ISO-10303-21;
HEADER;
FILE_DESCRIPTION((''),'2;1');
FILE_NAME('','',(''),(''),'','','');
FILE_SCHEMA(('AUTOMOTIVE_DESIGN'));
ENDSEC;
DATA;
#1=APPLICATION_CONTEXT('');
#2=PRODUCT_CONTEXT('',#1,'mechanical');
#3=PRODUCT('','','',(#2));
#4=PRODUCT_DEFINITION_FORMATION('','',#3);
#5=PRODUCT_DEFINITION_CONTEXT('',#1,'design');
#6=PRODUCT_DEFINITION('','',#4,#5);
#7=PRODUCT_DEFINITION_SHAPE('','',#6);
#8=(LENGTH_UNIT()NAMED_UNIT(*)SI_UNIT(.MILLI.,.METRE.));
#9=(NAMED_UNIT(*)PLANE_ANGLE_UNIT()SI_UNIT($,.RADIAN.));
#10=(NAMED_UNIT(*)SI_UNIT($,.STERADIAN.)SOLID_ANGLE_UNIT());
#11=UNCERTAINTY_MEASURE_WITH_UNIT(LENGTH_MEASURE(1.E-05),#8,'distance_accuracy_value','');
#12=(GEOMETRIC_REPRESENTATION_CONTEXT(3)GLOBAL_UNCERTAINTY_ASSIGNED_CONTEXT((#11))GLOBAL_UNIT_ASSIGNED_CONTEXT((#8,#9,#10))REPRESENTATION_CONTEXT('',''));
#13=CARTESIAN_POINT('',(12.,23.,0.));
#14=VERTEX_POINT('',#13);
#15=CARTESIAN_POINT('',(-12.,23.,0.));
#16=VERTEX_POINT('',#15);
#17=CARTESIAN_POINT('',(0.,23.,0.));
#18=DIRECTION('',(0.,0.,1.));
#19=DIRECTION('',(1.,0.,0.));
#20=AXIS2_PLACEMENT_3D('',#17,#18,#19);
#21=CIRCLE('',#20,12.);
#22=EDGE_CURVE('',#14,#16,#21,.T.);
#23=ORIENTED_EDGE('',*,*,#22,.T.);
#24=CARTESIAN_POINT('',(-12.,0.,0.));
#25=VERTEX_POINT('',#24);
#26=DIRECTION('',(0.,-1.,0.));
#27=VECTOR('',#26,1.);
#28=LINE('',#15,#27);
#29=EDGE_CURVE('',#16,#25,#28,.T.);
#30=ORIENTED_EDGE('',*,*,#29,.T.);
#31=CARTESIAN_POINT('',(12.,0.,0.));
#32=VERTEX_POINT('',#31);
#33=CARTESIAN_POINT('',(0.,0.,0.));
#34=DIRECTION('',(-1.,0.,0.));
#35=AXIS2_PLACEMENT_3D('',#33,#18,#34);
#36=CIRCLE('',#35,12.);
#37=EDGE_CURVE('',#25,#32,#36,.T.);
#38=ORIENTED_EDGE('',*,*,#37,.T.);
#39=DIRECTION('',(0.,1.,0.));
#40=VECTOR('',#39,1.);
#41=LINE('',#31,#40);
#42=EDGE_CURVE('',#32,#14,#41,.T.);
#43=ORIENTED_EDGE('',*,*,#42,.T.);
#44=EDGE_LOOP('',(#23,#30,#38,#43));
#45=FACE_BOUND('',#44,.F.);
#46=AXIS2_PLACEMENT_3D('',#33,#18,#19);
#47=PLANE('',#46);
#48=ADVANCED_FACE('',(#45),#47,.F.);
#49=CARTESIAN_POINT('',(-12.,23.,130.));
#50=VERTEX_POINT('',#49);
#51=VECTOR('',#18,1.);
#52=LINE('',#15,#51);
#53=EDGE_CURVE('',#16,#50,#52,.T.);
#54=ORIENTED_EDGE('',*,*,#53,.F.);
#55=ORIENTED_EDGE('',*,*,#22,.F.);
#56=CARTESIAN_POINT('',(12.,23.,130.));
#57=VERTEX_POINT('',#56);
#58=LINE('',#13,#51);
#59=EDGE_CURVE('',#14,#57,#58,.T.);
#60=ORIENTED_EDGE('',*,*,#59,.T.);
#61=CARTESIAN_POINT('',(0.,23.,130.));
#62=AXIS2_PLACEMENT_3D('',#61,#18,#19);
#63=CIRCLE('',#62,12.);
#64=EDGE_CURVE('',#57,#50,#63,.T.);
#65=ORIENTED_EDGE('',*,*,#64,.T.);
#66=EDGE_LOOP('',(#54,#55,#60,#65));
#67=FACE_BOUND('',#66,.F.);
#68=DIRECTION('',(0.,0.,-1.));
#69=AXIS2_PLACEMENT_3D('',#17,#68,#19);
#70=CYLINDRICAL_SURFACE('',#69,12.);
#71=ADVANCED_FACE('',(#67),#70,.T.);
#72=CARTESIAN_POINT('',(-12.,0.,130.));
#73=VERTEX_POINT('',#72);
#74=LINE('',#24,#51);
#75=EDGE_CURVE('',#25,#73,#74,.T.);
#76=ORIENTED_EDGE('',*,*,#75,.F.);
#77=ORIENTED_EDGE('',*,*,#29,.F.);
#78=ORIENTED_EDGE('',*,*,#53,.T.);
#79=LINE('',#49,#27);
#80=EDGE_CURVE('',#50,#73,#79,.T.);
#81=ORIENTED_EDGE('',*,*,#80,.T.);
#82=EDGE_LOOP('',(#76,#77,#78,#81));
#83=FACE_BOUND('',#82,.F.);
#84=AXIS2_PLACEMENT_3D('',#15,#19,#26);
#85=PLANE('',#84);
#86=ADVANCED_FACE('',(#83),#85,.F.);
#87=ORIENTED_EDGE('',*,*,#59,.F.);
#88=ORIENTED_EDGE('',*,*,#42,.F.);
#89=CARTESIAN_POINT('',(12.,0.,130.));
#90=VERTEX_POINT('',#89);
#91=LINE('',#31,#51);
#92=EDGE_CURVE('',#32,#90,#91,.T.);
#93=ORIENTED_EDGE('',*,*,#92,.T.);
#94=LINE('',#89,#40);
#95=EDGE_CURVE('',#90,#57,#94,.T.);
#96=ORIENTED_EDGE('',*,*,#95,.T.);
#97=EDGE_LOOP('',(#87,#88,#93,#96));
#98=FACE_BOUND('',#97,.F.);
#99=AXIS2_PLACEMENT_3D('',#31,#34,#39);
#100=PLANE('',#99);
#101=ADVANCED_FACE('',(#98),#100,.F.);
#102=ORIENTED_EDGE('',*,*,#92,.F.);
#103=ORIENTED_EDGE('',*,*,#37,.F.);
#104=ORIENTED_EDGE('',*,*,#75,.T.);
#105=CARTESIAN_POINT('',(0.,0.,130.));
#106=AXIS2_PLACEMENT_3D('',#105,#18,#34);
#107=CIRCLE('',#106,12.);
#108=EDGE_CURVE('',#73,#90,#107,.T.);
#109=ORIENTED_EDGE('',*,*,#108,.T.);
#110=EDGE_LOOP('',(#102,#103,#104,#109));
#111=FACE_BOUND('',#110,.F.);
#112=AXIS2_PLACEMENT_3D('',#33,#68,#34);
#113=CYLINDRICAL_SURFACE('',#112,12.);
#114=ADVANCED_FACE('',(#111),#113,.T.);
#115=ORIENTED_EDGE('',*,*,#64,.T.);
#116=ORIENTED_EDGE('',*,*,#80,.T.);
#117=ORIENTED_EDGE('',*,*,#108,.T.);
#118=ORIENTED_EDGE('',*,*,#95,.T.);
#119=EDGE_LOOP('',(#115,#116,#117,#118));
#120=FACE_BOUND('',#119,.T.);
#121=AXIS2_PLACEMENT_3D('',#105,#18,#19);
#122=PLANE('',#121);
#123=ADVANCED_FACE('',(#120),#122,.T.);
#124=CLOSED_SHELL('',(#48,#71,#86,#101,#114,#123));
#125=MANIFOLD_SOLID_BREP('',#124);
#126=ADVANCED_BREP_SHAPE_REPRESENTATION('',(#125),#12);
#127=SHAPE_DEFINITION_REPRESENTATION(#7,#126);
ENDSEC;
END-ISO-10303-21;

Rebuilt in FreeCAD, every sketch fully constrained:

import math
import FreeCAD as App
import Part
import Sketcher

V = App.Vector
Q = App.Units.Quantity

doc = App.newDocument("Part")
body = doc.addObject("PartDesign::Body", "Body")

sketch1 = body.newObject("Sketcher::SketchObject", "Sketch")
sketch1.AttachmentSupport = (doc.getObject("XY_Plane"), [""])
sketch1.MapMode = "FlatFace"
sketch1.addGeometry([
    Part.ArcOfCircle(Part.Circle(V(0, 0, 0), V(0, 0, 1), 12), math.radians(180), math.radians(360)),
    Part.LineSegment(V(12, 0, 0), V(12, 23, 0)),
    Part.ArcOfCircle(Part.Circle(V(0, 23, 0), V(0, 0, 1), 12), math.radians(0), math.radians(180)),
    Part.LineSegment(V(-12, 23, 0), V(-12, 0, 0)),
], False)
sketch1.addConstraint([
    Sketcher.Constraint("Tangent", 0, 2, 1, 1),
    Sketcher.Constraint("Tangent", 1, 2, 2, 1),
    Sketcher.Constraint("Tangent", 2, 2, 3, 1),
    Sketcher.Constraint("Tangent", 3, 2, 0, 1),
    Sketcher.Constraint("Vertical", 1),
    Sketcher.Constraint("Vertical", 3),
    Sketcher.Constraint("Coincident", 0, 3, -1, 1),
    Sketcher.Constraint("Radius", 0, Q("12 mm")),
    Sketcher.Constraint("DistanceY", 1, 1, 1, 2, Q("23 mm")),
])
pad1 = body.newObject("PartDesign::Pad", "Pad")
pad1.Profile = sketch1
pad1.Length = 130

doc.recompute()
